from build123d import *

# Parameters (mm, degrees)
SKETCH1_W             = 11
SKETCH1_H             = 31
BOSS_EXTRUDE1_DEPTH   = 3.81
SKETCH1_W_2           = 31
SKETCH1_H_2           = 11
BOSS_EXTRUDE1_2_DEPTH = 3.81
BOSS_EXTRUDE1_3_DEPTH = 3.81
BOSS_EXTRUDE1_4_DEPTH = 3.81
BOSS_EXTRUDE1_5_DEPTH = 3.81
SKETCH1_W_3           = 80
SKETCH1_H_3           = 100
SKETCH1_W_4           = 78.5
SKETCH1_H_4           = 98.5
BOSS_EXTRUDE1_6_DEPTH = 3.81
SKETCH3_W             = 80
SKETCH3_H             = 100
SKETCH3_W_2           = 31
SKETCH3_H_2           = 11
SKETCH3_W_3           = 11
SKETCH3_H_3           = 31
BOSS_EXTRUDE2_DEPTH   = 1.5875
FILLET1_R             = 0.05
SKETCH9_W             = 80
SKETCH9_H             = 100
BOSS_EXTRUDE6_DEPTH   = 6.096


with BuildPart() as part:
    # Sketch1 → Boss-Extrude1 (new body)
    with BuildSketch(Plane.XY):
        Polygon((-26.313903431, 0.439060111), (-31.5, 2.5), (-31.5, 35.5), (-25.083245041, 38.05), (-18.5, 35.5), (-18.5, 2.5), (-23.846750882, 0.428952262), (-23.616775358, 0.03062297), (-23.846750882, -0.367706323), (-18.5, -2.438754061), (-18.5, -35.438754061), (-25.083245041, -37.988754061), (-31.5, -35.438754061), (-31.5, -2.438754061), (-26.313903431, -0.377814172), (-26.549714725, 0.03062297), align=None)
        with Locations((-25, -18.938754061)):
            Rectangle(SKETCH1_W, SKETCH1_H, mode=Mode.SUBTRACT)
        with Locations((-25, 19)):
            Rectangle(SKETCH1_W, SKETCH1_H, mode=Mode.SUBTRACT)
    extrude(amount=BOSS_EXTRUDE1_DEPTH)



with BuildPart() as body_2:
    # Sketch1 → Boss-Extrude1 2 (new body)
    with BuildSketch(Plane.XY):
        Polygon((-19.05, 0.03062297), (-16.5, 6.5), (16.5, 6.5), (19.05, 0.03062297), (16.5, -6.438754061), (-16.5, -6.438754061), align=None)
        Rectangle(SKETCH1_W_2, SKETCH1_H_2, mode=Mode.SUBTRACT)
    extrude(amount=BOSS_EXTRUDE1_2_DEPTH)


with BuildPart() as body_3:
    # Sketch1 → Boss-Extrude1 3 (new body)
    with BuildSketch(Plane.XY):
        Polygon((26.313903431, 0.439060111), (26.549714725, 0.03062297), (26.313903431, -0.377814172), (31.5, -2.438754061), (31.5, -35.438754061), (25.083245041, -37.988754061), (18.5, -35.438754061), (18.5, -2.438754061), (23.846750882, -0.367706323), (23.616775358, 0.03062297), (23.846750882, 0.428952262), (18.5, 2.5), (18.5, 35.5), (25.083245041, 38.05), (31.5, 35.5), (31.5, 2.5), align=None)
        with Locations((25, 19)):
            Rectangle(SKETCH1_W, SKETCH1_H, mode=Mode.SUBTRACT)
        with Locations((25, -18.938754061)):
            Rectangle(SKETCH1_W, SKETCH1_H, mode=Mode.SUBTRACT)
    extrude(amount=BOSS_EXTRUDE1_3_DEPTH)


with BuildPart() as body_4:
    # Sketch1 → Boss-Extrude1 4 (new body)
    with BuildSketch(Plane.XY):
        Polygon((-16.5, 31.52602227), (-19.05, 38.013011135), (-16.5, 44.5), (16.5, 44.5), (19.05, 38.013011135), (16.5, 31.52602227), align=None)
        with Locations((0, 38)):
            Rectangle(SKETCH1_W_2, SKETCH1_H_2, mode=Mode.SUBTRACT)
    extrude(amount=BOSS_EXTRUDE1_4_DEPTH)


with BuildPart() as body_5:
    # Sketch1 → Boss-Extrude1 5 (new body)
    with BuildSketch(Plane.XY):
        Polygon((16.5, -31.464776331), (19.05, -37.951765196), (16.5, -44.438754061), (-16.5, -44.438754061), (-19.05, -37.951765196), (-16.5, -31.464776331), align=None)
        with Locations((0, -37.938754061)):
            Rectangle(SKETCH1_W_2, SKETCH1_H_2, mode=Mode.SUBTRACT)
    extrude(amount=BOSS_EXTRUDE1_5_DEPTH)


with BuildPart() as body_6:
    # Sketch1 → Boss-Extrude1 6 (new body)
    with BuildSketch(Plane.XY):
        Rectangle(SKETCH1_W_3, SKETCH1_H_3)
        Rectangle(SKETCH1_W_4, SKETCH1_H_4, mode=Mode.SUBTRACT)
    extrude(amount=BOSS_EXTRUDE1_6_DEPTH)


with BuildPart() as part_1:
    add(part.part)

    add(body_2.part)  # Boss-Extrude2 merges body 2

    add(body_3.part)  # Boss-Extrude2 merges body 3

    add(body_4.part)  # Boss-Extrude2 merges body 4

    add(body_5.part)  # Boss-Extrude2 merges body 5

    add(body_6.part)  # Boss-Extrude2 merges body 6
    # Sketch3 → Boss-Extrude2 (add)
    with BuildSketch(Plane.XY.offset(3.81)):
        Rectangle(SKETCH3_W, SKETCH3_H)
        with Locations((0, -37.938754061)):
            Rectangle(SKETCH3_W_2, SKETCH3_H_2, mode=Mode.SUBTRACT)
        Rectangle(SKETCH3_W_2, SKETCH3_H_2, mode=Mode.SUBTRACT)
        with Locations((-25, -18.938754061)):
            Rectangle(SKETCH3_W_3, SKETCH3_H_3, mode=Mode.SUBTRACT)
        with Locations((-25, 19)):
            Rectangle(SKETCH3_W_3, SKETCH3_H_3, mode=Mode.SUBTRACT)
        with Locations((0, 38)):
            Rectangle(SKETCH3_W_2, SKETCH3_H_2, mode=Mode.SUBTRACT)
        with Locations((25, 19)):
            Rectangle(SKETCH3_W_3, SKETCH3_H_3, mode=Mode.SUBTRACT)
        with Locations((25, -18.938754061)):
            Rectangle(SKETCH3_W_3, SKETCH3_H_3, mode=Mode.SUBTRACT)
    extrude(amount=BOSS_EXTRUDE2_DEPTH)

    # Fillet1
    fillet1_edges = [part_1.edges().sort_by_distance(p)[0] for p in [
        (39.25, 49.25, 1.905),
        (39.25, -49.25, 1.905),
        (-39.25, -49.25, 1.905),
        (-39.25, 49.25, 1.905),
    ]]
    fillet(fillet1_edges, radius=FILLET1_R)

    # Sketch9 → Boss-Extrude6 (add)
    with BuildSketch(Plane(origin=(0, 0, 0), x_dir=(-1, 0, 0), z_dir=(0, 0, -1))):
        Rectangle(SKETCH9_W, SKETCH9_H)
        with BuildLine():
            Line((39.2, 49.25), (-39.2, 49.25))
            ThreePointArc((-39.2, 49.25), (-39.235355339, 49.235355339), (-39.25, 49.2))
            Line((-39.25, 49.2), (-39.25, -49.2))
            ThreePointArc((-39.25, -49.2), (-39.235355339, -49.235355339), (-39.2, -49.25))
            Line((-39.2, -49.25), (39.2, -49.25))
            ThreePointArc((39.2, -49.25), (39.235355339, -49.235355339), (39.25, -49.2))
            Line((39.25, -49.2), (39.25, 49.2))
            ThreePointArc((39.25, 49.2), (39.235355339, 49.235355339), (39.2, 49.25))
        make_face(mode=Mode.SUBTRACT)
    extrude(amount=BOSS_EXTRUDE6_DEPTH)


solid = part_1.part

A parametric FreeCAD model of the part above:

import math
import FreeCAD as App
import Part
import Sketcher
Q = App.Units.Quantity


def edges_at(feature, points):
    """Names of the edges that pass closest to the given points."""
    edges = feature.Shape.Edges
    near = lambda p: min(range(len(edges)), key=lambda i: edges[i].distToShape(Part.Vertex(*p))[0])
    return sorted({f"Edge{near(p) + 1}" for p in points})

doc = App.newDocument("Part")
params = doc.addObject("Spreadsheet::Sheet", "Params")
for row, (alias, value) in enumerate([
    ("sketch1_width", "11 mm"),
    ("sketch1_height", "33 mm"),
    ("sketch1_height2", "31 mm"),
    ("pad1_length", "3.81 mm"),
    ("sketch2_width", "33 mm"),
    ("sketch2_width2", "31 mm"),
    ("sketch2_height", "11 mm"),
    ("pad2_length", "3.81 mm"),
    ("sketch3_width", "11 mm"),
    ("sketch3_height", "33 mm"),
    ("sketch3_height2", "31 mm"),
    ("pad3_length", "3.81 mm"),
    ("sketch4_width", "33 mm"),
    ("sketch4_width2", "31 mm"),
    ("sketch4_height", "11 mm"),
    ("pad4_length", "3.81 mm"),
    ("sketch5_width", "33 mm"),
    ("sketch5_width2", "31 mm"),
    ("sketch5_height", "11 mm"),
    ("pad5_length", "3.81 mm"),
    ("sketch6_width", "80 mm"),
    ("sketch6_height", "100 mm"),
    ("sketch6_width2", "78.5 mm"),
    ("sketch6_height2", "98.5 mm"),
    ("pad6_length", "3.81 mm"),
    ("sketch7_width", "80 mm"),
    ("sketch7_width2", "11 mm"),
    ("sketch7_width3", "31 mm"),
    ("sketch7_height", "100 mm"),
    ("pad7_length", "1.5875 mm"),
    ("fillet_radius", "0.05 mm"),
    ("sketch8_width", "80 mm"),
    ("sketch8_height", "100 mm"),
    ("sketch8_radius", "0.05 mm"),
    ("sketch8_width2", "78.4 mm"),
    ("sketch8_height2", "98.4 mm"),
    ("pad8_length", "6.096 mm"),
], start=1):
    params.set(f"A{row}", alias)
    params.set(f"B{row}", "=" + value)
    params.setAlias(f"B{row}", alias)

body = doc.addObject("PartDesign::Body", "Body")

# Sketch on XY plane
sketch1 = body.newObject("Sketcher::SketchObject", "Sketch")
sketch1.AttachmentSupport = (doc.getObject("XY_Plane"), [""])
sketch1.MapMode = "FlatFace"
sketch1.addGeometry([
    Part.LineSegment(App.Vector(-31.5, 2.5, 0), App.Vector(-26.31, 0.44, 0)),  # 0
    Part.LineSegment(App.Vector(-26.31, 0.44, 0), App.Vector(-26.55, 0.03, 0)),  # 1
    Part.LineSegment(App.Vector(-26.55, 0.03, 0), App.Vector(-26.31, -0.38, 0)),  # 2
    Part.LineSegment(App.Vector(-26.31, -0.38, 0), App.Vector(-31.5, -2.44, 0)),  # 3
    Part.LineSegment(App.Vector(-31.5, -2.44, 0), App.Vector(-31.5, -35.44, 0)),  # 4
    Part.LineSegment(App.Vector(-31.5, -35.44, 0), App.Vector(-25.08, -37.99, 0)),  # 5
    Part.LineSegment(App.Vector(-25.08, -37.99, 0), App.Vector(-18.5, -35.44, 0)),  # 6
    Part.LineSegment(App.Vector(-18.5, -35.44, 0), App.Vector(-18.5, -2.44, 0)),  # 7
    Part.LineSegment(App.Vector(-18.5, -2.44, 0), App.Vector(-23.85, -0.37, 0)),  # 8
    Part.LineSegment(App.Vector(-23.85, -0.37, 0), App.Vector(-23.62, 0.03, 0)),  # 9
    Part.LineSegment(App.Vector(-23.62, 0.03, 0), App.Vector(-23.85, 0.43, 0)),  # 10
    Part.LineSegment(App.Vector(-23.85, 0.43, 0), App.Vector(-18.5, 2.5, 0)),  # 11
    Part.LineSegment(App.Vector(-18.5, 2.5, 0), App.Vector(-18.5, 35.5, 0)),  # 12
    Part.LineSegment(App.Vector(-18.5, 35.5, 0), App.Vector(-25.08, 38.05, 0)),  # 13
    Part.LineSegment(App.Vector(-25.08, 38.05, 0), App.Vector(-31.5, 35.5, 0)),  # 14
    Part.LineSegment(App.Vector(-31.5, 35.5, 0), App.Vector(-31.5, 2.5, 0)),  # 15
    Part.LineSegment(App.Vector(-30.5, -34.44, 0), App.Vector(-30.5, -3.44, 0)),  # 16
    Part.LineSegment(App.Vector(-30.5, -3.44, 0), App.Vector(-19.5, -3.44, 0)),  # 17
    Part.LineSegment(App.Vector(-19.5, -3.44, 0), App.Vector(-19.5, -34.44, 0)),  # 18
    Part.LineSegment(App.Vector(-19.5, -34.44, 0), App.Vector(-30.5, -34.44, 0)),  # 19
    Part.LineSegment(App.Vector(-30.5, 3.5, 0), App.Vector(-30.5, 34.5, 0)),  # 20
    Part.LineSegment(App.Vector(-30.5, 34.5, 0), App.Vector(-19.5, 34.5, 0)),  # 21
    Part.LineSegment(App.Vector(-19.5, 34.5, 0), App.Vector(-19.5, 3.5, 0)),  # 22
    Part.LineSegment(App.Vector(-19.5, 3.5, 0), App.Vector(-30.5, 3.5, 0)),  # 23
], False)
sketch1.addConstraint([
    Sketcher.Constraint("Coincident", 0, 2, 1, 1),
    Sketcher.Constraint("Coincident", 1, 2, 2, 1),
    Sketcher.Constraint("Coincident", 2, 2, 3, 1),
    Sketcher.Constraint("Coincident", 3, 2, 4, 1),
    Sketcher.Constraint("Coincident", 4, 2, 5, 1),
    Sketcher.Constraint("Coincident", 5, 2, 6, 1),
    Sketcher.Constraint("Coincident", 6, 2, 7, 1),
    Sketcher.Constraint("Coincident", 7, 2, 8, 1),
    Sketcher.Constraint("Coincident", 8, 2, 9, 1),
    Sketcher.Constraint("Coincident", 9, 2, 10, 1),
    Sketcher.Constraint("Coincident", 10, 2, 11, 1),
    Sketcher.Constraint("Coincident", 11, 2, 12, 1),
    Sketcher.Constraint("Coincident", 12, 2, 13, 1),
    Sketcher.Constraint("Coincident", 13, 2, 14, 1),
    Sketcher.Constraint("Coincident", 14, 2, 15, 1),
    Sketcher.Constraint("Coincident", 15, 2, 0, 1),
    Sketcher.Constraint("Coincident", 16, 2, 17, 1),
    Sketcher.Constraint("Coincident", 17, 2, 18, 1),
    Sketcher.Constraint("Coincident", 18, 2, 19, 1),
    Sketcher.Constraint("Coincident", 19, 2, 16, 1),
    Sketcher.Constraint("Coincident", 20, 2, 21, 1),
    Sketcher.Constraint("Coincident", 21, 2, 22, 1),
    Sketcher.Constraint("Coincident", 22, 2, 23, 1),
    Sketcher.Constraint("Coincident", 23, 2, 20, 1),
    Sketcher.Constraint("Vertical", 4),
    Sketcher.Constraint("Vertical", 7),
    Sketcher.Constraint("Vertical", 12),
    Sketcher.Constraint("Vertical", 15),
    Sketcher.Constraint("Vertical", 16),
    Sketcher.Constraint("Horizontal", 17),
    Sketcher.Constraint("Vertical", 18),
    Sketcher.Constraint("Horizontal", 19),
    Sketcher.Constraint("Vertical", 20),
    Sketcher.Constraint("Horizontal", 21),
    Sketcher.Constraint("Vertical", 22),
    Sketcher.Constraint("Horizontal", 23),
    Sketcher.Constraint("Parallel", 0, 5),
    Sketcher.Constraint("Parallel", 1, 9),
    Sketcher.Constraint("Parallel", 2, 10),
    Sketcher.Constraint("Parallel", 6, 11),
    Sketcher.Constraint("Parallel", 8, 13),
    Sketcher.Constraint("Parallel", 3, 14),
    Sketcher.Constraint("Horizontal", 4, 2, 6, 2),
    Sketcher.Constraint("Horizontal", 3, 2, 7, 2),
    Sketcher.Constraint("Horizontal", 1, 2, 9, 2),
    Sketcher.Constraint("Horizontal", 12, 2, 14, 2),
    Sketcher.Constraint("Horizontal", 11, 2, 15, 2),
    Sketcher.Constraint("Vertical", 0, 2, 2, 2),
    Sketcher.Constraint("Vertical", 8, 2, 10, 2),
    Sketcher.Constraint("Vertical", 7, 2, 11, 2),
    Sketcher.Constraint("Vertical", 5, 2, 13, 2),
    Sketcher.Constraint("Vertical", 4, 2, 14, 2),
    Sketcher.Constraint("Vertical", 19, 2, 20, 2),
    Sketcher.Constraint("Vertical", 18, 2, 21, 2),
    Sketcher.Constraint("Equal", 7, 12),
    Sketcher.Constraint("Equal", 18, 20),
    Sketcher.Constraint("Equal", 0, 3),
    Sketcher.Constraint("DistanceX", 17, 1, 17, 2, 11.0),
    Sketcher.Constraint("DistanceY", 4, 2, 4, 1, 33.0),
    Sketcher.Constraint("DistanceY", 16, 1, 16, 2, 31.0),
    Sketcher.Constraint("Angle", 1, Q("-120 deg")),
    Sketcher.Constraint("DistanceX", 4, 2, 6, 2, 13.0),
    Sketcher.Constraint("DistanceX", 3, 2, 16, 2, 1.0),
    Sketcher.Constraint("DistanceY", 16, 2, 3, 2, 1.0),
    Sketcher.Constraint("DistanceY", 20, 2, 14, 2, 1.0),
    Sketcher.Constraint("DistanceX", 3, 2, -1, 1, 31.5),
    Sketcher.Constraint("DistanceY", -1, 1, 11, 2, 2.5),
    Sketcher.Constraint("DistanceY", -1, 1, 13, 2, 38.05),
    Sketcher.Constraint("Distance", 5, 6.904871),
    Sketcher.Constraint("Distance", 9, 0.459951),
    Sketcher.Constraint("DistanceY", -1, 1, 0, 2, 0.43906),
    Sketcher.Constraint("DistanceX", 8, 2, -1, 1, 23.846751),
])
sketch1.setExpression("Constraints[57]", "Params.sketch1_width")
sketch1.setExpression("Constraints[58]", "Params.sketch1_height")
sketch1.setExpression("Constraints[59]", "Params.sketch1_height2")
pad1 = body.newObject("PartDesign::Pad", "Pad")
pad1.Profile = sketch1
pad1.setExpression("Length", "Params.pad1_length")
body2 = doc.addObject("PartDesign::Body", "Body001")

# Sketch on XY plane
sketch2 = body2.newObject("Sketcher::SketchObject", "Sketch001")
sketch2.AttachmentSupport = (doc.getObject("XY_Plane001"), [""])
sketch2.MapMode = "FlatFace"
sketch2.addGeometry([
    Part.LineSegment(App.Vector(-16, 6, 0), App.Vector(-19, 0, 0)),  # 0
    Part.LineSegment(App.Vector(-19, 0, 0), App.Vector(-16, -6, 0)),  # 1
    Part.LineSegment(App.Vector(-16, -6, 0), App.Vector(16, -6, 0)),  # 2
    Part.LineSegment(App.Vector(16, -6, 0), App.Vector(19, 0, 0)),  # 3
    Part.LineSegment(App.Vector(19, 0, 0), App.Vector(16, 6, 0)),  # 4
    Part.LineSegment(App.Vector(16, 6, 0), App.Vector(-16, 6, 0)),  # 5
    Part.LineSegment(App.Vector(-16, -6, 0), App.Vector(-16, 6, 0)),  # 6
    Part.LineSegment(App.Vector(-16, 6, 0), App.Vector(16, 6, 0)),  # 7
    Part.LineSegment(App.Vector(16, 6, 0), App.Vector(16, -6, 0)),  # 8
    Part.LineSegment(App.Vector(16, -6, 0), App.Vector(-16, -6, 0)),  # 9
], False)
sketch2.addConstraint([
    Sketcher.Constraint("Coincident", 0, 2, 1, 1),
    Sketcher.Constraint("Coincident", 1, 2, 2, 1),
    Sketcher.Constraint("Coincident", 2, 2, 3, 1),
    Sketcher.Constraint("Coincident", 3, 2, 4, 1),
    Sketcher.Constraint("Coincident", 4, 2, 5, 1),
    Sketcher.Constraint("Coincident", 5, 2, 0, 1),
    Sketcher.Constraint("Coincident", 6, 2, 7, 1),
    Sketcher.Constraint("Coincident", 7, 2, 8, 1),
    Sketcher.Constraint("Coincident", 8, 2, 9, 1),
    Sketcher.Constraint("Coincident", 9, 2, 6, 1),
    Sketcher.Constraint("Horizontal", 2),
    Sketcher.Constraint("Horizontal", 5),
    Sketcher.Constraint("Vertical", 6),
    Sketcher.Constraint("Horizontal", 7),
    Sketcher.Constraint("Vertical", 8),
    Sketcher.Constraint("Horizontal", 9),
    Sketcher.Constraint("Symmetric", 6, 2, 8, 2, -1, 1),
    Sketcher.Constraint("Symmetric", 0, 2, 3, 2, -2),
    Sketcher.Constraint("Parallel", 0, 3),
    Sketcher.Constraint("Parallel", 1, 4),
    Sketcher.Constraint("Vertical", 2, 2, 4, 2),
    Sketcher.Constraint("Vertical", 1, 2, 5, 2),
    Sketcher.Constraint("DistanceX", 2, 1, 2, 2, 33.0),
    Sketcher.Constraint("DistanceX", 7, 1, 7, 2, 31.0),
    Sketcher.Constraint("DistanceY", 6, 1, 6, 2, 11.0),
    Sketcher.Constraint("DistanceY", 6, 2, 5, 2, 1.0),
    Sketcher.Constraint("DistanceX", 0, 2, 3, 2, 38.1),
    Sketcher.Constraint("Distance", 0, 6.9538),
])
sketch2.setExpression("Constraints[22]", "Params.sketch2_width")
sketch2.setExpression("Constraints[23]", "Params.sketch2_width2")
sketch2.setExpression("Constraints[24]", "Params.sketch2_height")
pad2 = body2.newObject("PartDesign::Pad", "Pad001")
pad2.Profile = sketch2
pad2.setExpression("Length", "Params.pad2_length")
body3 = doc.addObject("PartDesign::Body", "Body002")

# Sketch on XY plane
sketch3 = body3.newObject("Sketcher::SketchObject", "Sketch002")
sketch3.AttachmentSupport = (doc.getObject("XY_Plane002"), [""])
sketch3.MapMode = "FlatFace"
sketch3.addGeometry([
    Part.LineSegment(App.Vector(26.55, 0.03, 0), App.Vector(26.31, 0.44, 0)),  # 0
    Part.LineSegment(App.Vector(26.31, 0.44, 0), App.Vector(31.5, 2.5, 0)),  # 1
    Part.LineSegment(App.Vector(31.5, 2.5, 0), App.Vector(31.5, 35.5, 0)),  # 2
    Part.LineSegment(App.Vector(31.5, 35.5, 0), App.Vector(25.08, 38.05, 0)),  # 3
    Part.LineSegment(App.Vector(25.08, 38.05, 0), App.Vector(18.5, 35.5, 0)),  # 4
    Part.LineSegment(App.Vector(18.5, 35.5, 0), App.Vector(18.5, 2.5, 0)),  # 5
    Part.LineSegment(App.Vector(18.5, 2.5, 0), App.Vector(23.85, 0.43, 0)),  # 6
    Part.LineSegment(App.Vector(23.85, 0.43, 0), App.Vector(23.62, 0.03, 0)),  # 7
    Part.LineSegment(App.Vector(23.62, 0.03, 0), App.Vector(23.85, -0.37, 0)),  # 8
    Part.LineSegment(App.Vector(23.85, -0.37, 0), App.Vector(18.5, -2.44, 0)),  # 9
    Part.LineSegment(App.Vector(18.5, -2.44, 0), App.Vector(18.5, -35.44, 0)),  # 10
    Part.LineSegment(App.Vector(18.5, -35.44, 0), App.Vector(25.08, -37.99, 0)),  # 11
    Part.LineSegment(App.Vector(25.08, -37.99, 0), App.Vector(31.5, -35.44, 0)),  # 12
    Part.LineSegment(App.Vector(31.5, -35.44, 0), App.Vector(31.5, -2.44, 0)),  # 13
    Part.LineSegment(App.Vector(31.5, -2.44, 0), App.Vector(26.31, -0.38, 0)),  # 14
    Part.LineSegment(App.Vector(26.31, -0.38, 0), App.Vector(26.55, 0.03, 0)),  # 15
    Part.LineSegment(App.Vector(19.5, -34.44, 0), App.Vector(19.5, -3.44, 0)),  # 16
    Part.LineSegment(App.Vector(19.5, -3.44, 0), App.Vector(30.5, -3.44, 0)),  # 17
    Part.LineSegment(App.Vector(30.5, -3.44, 0), App.Vector(30.5, -34.44, 0)),  # 18
    Part.LineSegment(App.Vector(30.5, -34.44, 0), App.Vector(19.5, -34.44, 0)),  # 19
    Part.LineSegment(App.Vector(19.5, 3.5, 0), App.Vector(19.5, 34.5, 0)),  # 20
    Part.LineSegment(App.Vector(19.5, 34.5, 0), App.Vector(30.5, 34.5, 0)),  # 21
    Part.LineSegment(App.Vector(30.5, 34.5, 0), App.Vector(30.5, 3.5, 0)),  # 22
    Part.LineSegment(App.Vector(30.5, 3.5, 0), App.Vector(19.5, 3.5, 0)),  # 23
], False)
sketch3.addConstraint([
    Sketcher.Constraint("Coincident", 0, 2, 1, 1),
    Sketcher.Constraint("Coincident", 1, 2, 2, 1),
    Sketcher.Constraint("Coincident", 2, 2, 3, 1),
    Sketcher.Constraint("Coincident", 3, 2, 4, 1),
    Sketcher.Constraint("Coincident", 4, 2, 5, 1),
    Sketcher.Constraint("Coincident", 5, 2, 6, 1),
    Sketcher.Constraint("Coincident", 6, 2, 7, 1),
    Sketcher.Constraint("Coincident", 7, 2, 8, 1),
    Sketcher.Constraint("Coincident", 8, 2, 9, 1),
    Sketcher.Constraint("Coincident", 9, 2, 10, 1),
    Sketcher.Constraint("Coincident", 10, 2, 11, 1),
    Sketcher.Constraint("Coincident", 11, 2, 12, 1),
    Sketcher.Constraint("Coincident", 12, 2, 13, 1),
    Sketcher.Constraint("Coincident", 13, 2, 14, 1),
    Sketcher.Constraint("Coincident", 14, 2, 15, 1),
    Sketcher.Constraint("Coincident", 15, 2, 0, 1),
    Sketcher.Constraint("Coincident", 16, 2, 17, 1),
    Sketcher.Constraint("Coincident", 17, 2, 18, 1),
    Sketcher.Constraint("Coincident", 18, 2, 19, 1),
    Sketcher.Constraint("Coincident", 19, 2, 16, 1),
    Sketcher.Constraint("Coincident", 20, 2, 21, 1),
    Sketcher.Constraint("Coincident", 21, 2, 22, 1),
    Sketcher.Constraint("Coincident", 22, 2, 23, 1),
    Sketcher.Constraint("Coincident", 23, 2, 20, 1),
    Sketcher.Constraint("Vertical", 2),
    Sketcher.Constraint("Vertical", 5),
    Sketcher.Constraint("Vertical", 10),
    Sketcher.Constraint("Vertical", 13),
    Sketcher.Constraint("Vertical", 16),
    Sketcher.Constraint("Horizontal", 17),
    Sketcher.Constraint("Vertical", 18),
    Sketcher.Constraint("Horizontal", 19),
    Sketcher.Constraint("Vertical", 20),
    Sketcher.Constraint("Horizontal", 21),
    Sketcher.Constraint("Vertical", 22),
    Sketcher.Constraint("Horizontal", 23),
    Sketcher.Constraint("Parallel", 0, 8),
    Sketcher.Constraint("Parallel", 4, 9),
    Sketcher.Constraint("Parallel", 6, 11),
    Sketcher.Constraint("Parallel", 1, 12),
    Sketcher.Constraint("Parallel", 3, 14),
    Sketcher.Constraint("Parallel", 7, 15),
    Sketcher.Constraint("Horizontal", 2, 2, 4, 2),
    Sketcher.Constraint("Horizontal", 1, 2, 5, 2),
    Sketcher.Constraint("Horizontal", 10, 2, 12, 2),
    Sketcher.Constraint("Horizontal", 9, 2, 13, 2),
    Sketcher.Constraint("Horizontal", 7, 2, 15, 2),
    Sketcher.Constraint("Vertical", 6, 2, 8, 2),
    Sketcher.Constraint("Vertical", 5, 2, 9, 2),
    Sketcher.Constraint("Vertical", 3, 2, 11, 2),
    Sketcher.Constraint("Vertical", 2, 2, 12, 2),
    Sketcher.Constraint("Vertical", 0, 2, 14, 2),
    Sketcher.Constraint("Vertical", 19, 2, 20, 2),
    Sketcher.Constraint("Vertical", 18, 2, 21, 2),
    Sketcher.Constraint("Equal", 5, 10),
    Sketcher.Constraint("Equal", 18, 20),
    Sketcher.Constraint("Equal", 6, 9),
    Sketcher.Constraint("DistanceX", 17, 1, 17, 2, 11.0),
    Sketcher.Constraint("DistanceY", 2, 1, 2, 2, 33.0),
    Sketcher.Constraint("DistanceY", 16, 1, 16, 2, 31.0),
    Sketcher.Constraint("Angle", 0, Q("120 deg")),
    Sketcher.Constraint("DistanceX", 4, 2, 2, 2, 13.0),
    Sketcher.Constraint("DistanceX", 9, 2, 16, 2, 1.0),
    Sketcher.Constraint("DistanceY", 16, 2, 9, 2, 1.0),
    Sketcher.Constraint("DistanceY", 20, 2, 4, 2, 1.0),
    Sketcher.Constraint("DistanceX", -1, 1, 1, 2, 31.5),
    Sketcher.Constraint("DistanceY", -1, 1, 1, 2, 2.5),
    Sketcher.Constraint("DistanceY", -1, 1, 3, 2, 38.05),
    Sketcher.Constraint("Distance", 3, 6.904871),
    Sketcher.Constraint("Distance", 7, 0.459951),
    Sketcher.Constraint("DistanceY", -1, 1, 0, 2, 0.43906),
    Sketcher.Constraint("DistanceX", -1, 1, 6, 2, 23.846751),
])
sketch3.setExpression("Constraints[57]", "Params.sketch3_width")
sketch3.setExpression("Constraints[58]", "Params.sketch3_height")
sketch3.setExpression("Constraints[59]", "Params.sketch3_height2")
pad3 = body3.newObject("PartDesign::Pad", "Pad002")
pad3.Profile = sketch3
pad3.setExpression("Length", "Params.pad3_length")
body4 = doc.addObject("PartDesign::Body", "Body003")

# Sketch on XY plane
sketch4 = body4.newObject("Sketcher::SketchObject", "Sketch003")
sketch4.AttachmentSupport = (doc.getObject("XY_Plane003"), [""])
sketch4.MapMode = "FlatFace"
sketch4.addGeometry([
    Part.LineSegment(App.Vector(-19, 38, 0), App.Vector(-16, 32, 0)),  # 0
    Part.LineSegment(App.Vector(-16, 32, 0), App.Vector(16, 32, 0)),  # 1
    Part.LineSegment(App.Vector(16, 32, 0), App.Vector(19, 38, 0)),  # 2
    Part.LineSegment(App.Vector(19, 38, 0), App.Vector(16, 44, 0)),  # 3
    Part.LineSegment(App.Vector(16, 44, 0), App.Vector(-16, 44, 0)),  # 4
    Part.LineSegment(App.Vector(-16, 44, 0), App.Vector(-19, 38, 0)),  # 5
    Part.LineSegment(App.Vector(-16, 32, 0), App.Vector(-16, 44, 0)),  # 6
    Part.LineSegment(App.Vector(-16, 44, 0), App.Vector(16, 44, 0)),  # 7
    Part.LineSegment(App.Vector(16, 44, 0), App.Vector(16, 32, 0)),  # 8
    Part.LineSegment(App.Vector(16, 32, 0), App.Vector(-16, 32, 0)),  # 9
], False)
sketch4.addConstraint([
    Sketcher.Constraint("Coincident", 0, 2, 1, 1),
    Sketcher.Constraint("Coincident", 1, 2, 2, 1),
    Sketcher.Constraint("Coincident", 2, 2, 3, 1),
    Sketcher.Constraint("Coincident", 3, 2, 4, 1),
    Sketcher.Constraint("Coincident", 4, 2, 5, 1),
    Sketcher.Constraint("Coincident", 5, 2, 0, 1),
    Sketcher.Constraint("Coincident", 6, 2, 7, 1),
    Sketcher.Constraint("Coincident", 7, 2, 8, 1),
    Sketcher.Constraint("Coincident", 8, 2, 9, 1),
    Sketcher.Constraint("Coincident", 9, 2, 6, 1),
    Sketcher.Constraint("Horizontal", 1),
    Sketcher.Constraint("Horizontal", 4),
    Sketcher.Constraint("Vertical", 6),
    Sketcher.Constraint("Horizontal", 7),
    Sketcher.Constraint("Vertical", 8),
    Sketcher.Constraint("Horizontal", 9),
    Sketcher.Constraint("Symmetric", 2, 2, 5, 2, -2),
    Sketcher.Constraint("Parallel", 0, 3),
    Sketcher.Constraint("Parallel", 2, 5),
    Sketcher.Constraint("Vertical", 1, 2, 3, 2),
    Sketcher.Constraint("Vertical", 0, 2, 4, 2),
    Sketcher.Constraint("DistanceX", 1, 1, 1, 2, 33.0),
    Sketcher.Constraint("DistanceX", 7, 1, 7, 2, 31.0),
    Sketcher.Constraint("DistanceY", 6, 1, 6, 2, 11.0),
    Sketcher.Constraint("DistanceX", 4, 2, 6, 2, 1.0),
    Sketcher.Constraint("DistanceY", 6, 2, 4, 2, 1.0),
    Sketcher.Constraint("DistanceY", -1, 1, 3, 2, 44.5),
    Sketcher.Constraint("DistanceX", 5, 2, 2, 2, 38.1),
    Sketcher.Constraint("Distance", 0, 6.970188),
])
sketch4.setExpression("Constraints[21]", "Params.sketch4_width")
sketch4.setExpression("Constraints[22]", "Params.sketch4_width2")
sketch4.setExpression("Constraints[23]", "Params.sketch4_height")
pad4 = body4.newObject("PartDesign::Pad", "Pad003")
pad4.Profile = sketch4
pad4.setExpression("Length", "Params.pad4_length")
body5 = doc.addObject("PartDesign::Body", "Body004")

# Sketch on XY plane
sketch5 = body5.newObject("Sketcher::SketchObject", "Sketch004")
sketch5.AttachmentSupport = (doc.getObject("XY_Plane004"), [""])
sketch5.MapMode = "FlatFace"
sketch5.addGeometry([
    Part.LineSegment(App.Vector(19, -38, 0), App.Vector(16, -31, 0)),  # 0
    Part.LineSegment(App.Vector(16, -31, 0), App.Vector(-16, -31, 0)),  # 1
    Part.LineSegment(App.Vector(-16, -31, 0), App.Vector(-19, -38, 0)),  # 2
    Part.LineSegment(App.Vector(-19, -38, 0), App.Vector(-16, -44, 0)),  # 3
    Part.LineSegment(App.Vector(-16, -44, 0), App.Vector(16, -44, 0)),  # 4
    Part.LineSegment(App.Vector(16, -44, 0), App.Vector(19, -38, 0)),  # 5
    Part.LineSegment(App.Vector(-16, -43, 0), App.Vector(-16, -32, 0)),  # 6
    Part.LineSegment(App.Vector(-16, -32, 0), App.Vector(16, -32, 0)),  # 7
    Part.LineSegment(App.Vector(16, -32, 0), App.Vector(16, -43, 0)),  # 8
    Part.LineSegment(App.Vector(16, -43, 0), App.Vector(-16, -43, 0)),  # 9
], False)
sketch5.addConstraint([
    Sketcher.Constraint("Coincident", 0, 2, 1, 1),
    Sketcher.Constraint("Coincident", 1, 2, 2, 1),
    Sketcher.Constraint("Coincident", 2, 2, 3, 1),
    Sketcher.Constraint("Coincident", 3, 2, 4, 1),
    Sketcher.Constraint("Coincident", 4, 2, 5, 1),
    Sketcher.Constraint("Coincident", 5, 2, 0, 1),
    Sketcher.Constraint("Coincident", 6, 2, 7, 1),
    Sketcher.Constraint("Coincident", 7, 2, 8, 1),
    Sketcher.Constraint("Coincident", 8, 2, 9, 1),
    Sketcher.Constraint("Coincident", 9, 2, 6, 1),
    Sketcher.Constraint("Horizontal", 1),
    Sketcher.Constraint("Horizontal", 4),
    Sketcher.Constraint("Vertical", 6),
    Sketcher.Constraint("Horizontal", 7),
    Sketcher.Constraint("Vertical", 8),
    Sketcher.Constraint("Horizontal", 9),
    Sketcher.Constraint("Symmetric", 2, 2, 5, 2, -2),
    Sketcher.Constraint("Parallel", 0, 3),
    Sketcher.Constraint("Parallel", 2, 5),
    Sketcher.Constraint("Vertical", 1, 2, 3, 2),
    Sketcher.Constraint("Vertical", 0, 2, 4, 2),
    Sketcher.Constraint("DistanceX", 1, 2, 1, 1, 33.0),
    Sketcher.Constraint("DistanceX", 7, 1, 7, 2, 31.0),
    Sketcher.Constraint("DistanceY", 6, 1, 6, 2, 11.0),
    Sketcher.Constraint("DistanceX", 1, 2, 6, 2, 1.0),
    Sketcher.Constraint("DistanceY", 3, 2, 6, 2, 12.0),
    Sketcher.Constraint("DistanceX", 2, 2, 5, 2, 38.1),
    Sketcher.Constraint("Distance", 0, 6.970188),
    Sketcher.Constraint("DistanceY", 0, 2, -1, 1, 31.464776),
])
sketch5.setExpression("Constraints[21]", "Params.sketch5_width")
sketch5.setExpression("Constraints[22]", "Params.sketch5_width2")
sketch5.setExpression("Constraints[23]", "Params.sketch5_height")
pad5 = body5.newObject("PartDesign::Pad", "Pad004")
pad5.Profile = sketch5
pad5.setExpression("Length", "Params.pad5_length")
body6 = doc.addObject("PartDesign::Body", "Body005")

# Sketch on XY plane
sketch6 = body6.newObject("Sketcher::SketchObject", "Sketch005")
sketch6.AttachmentSupport = (doc.getObject("XY_Plane005"), [""])
sketch6.MapMode = "FlatFace"
sketch6.addGeometry([
    Part.LineSegment(App.Vector(-40, 50, 0), App.Vector(-40, -50, 0)),  # 0
    Part.LineSegment(App.Vector(-40, -50, 0), App.Vector(40, -50, 0)),  # 1
    Part.LineSegment(App.Vector(40, -50, 0), App.Vector(40, 50, 0)),  # 2
    Part.LineSegment(App.Vector(40, 50, 0), App.Vector(-40, 50, 0)),  # 3
    Part.LineSegment(App.Vector(39, -49, 0), App.Vector(-39, -49, 0)),  # 4
    Part.LineSegment(App.Vector(-39, -49, 0), App.Vector(-39, 49, 0)),  # 5
    Part.LineSegment(App.Vector(-39, 49, 0), App.Vector(39, 49, 0)),  # 6
    Part.LineSegment(App.Vector(39, 49, 0), App.Vector(39, -49, 0)),  # 7
], False)
sketch6.addConstraint([
    Sketcher.Constraint("Coincident", 0, 2, 1, 1),
    Sketcher.Constraint("Coincident", 1, 2, 2, 1),
    Sketcher.Constraint("Coincident", 2, 2, 3, 1),
    Sketcher.Constraint("Coincident", 3, 2, 0, 1),
    Sketcher.Constraint("Coincident", 4, 2, 5, 1),
    Sketcher.Constraint("Coincident", 5, 2, 6, 1),
    Sketcher.Constraint("Coincident", 6, 2, 7, 1),
    Sketcher.Constraint("Coincident", 7, 2, 4, 1),
    Sketcher.Constraint("Vertical", 0),
    Sketcher.Constraint("Horizontal", 1),
    Sketcher.Constraint("Vertical", 2),
    Sketcher.Constraint("Horizontal", 3),
    Sketcher.Constraint("Horizontal", 4),
    Sketcher.Constraint("Vertical", 5),
    Sketcher.Constraint("Horizontal", 6),
    Sketcher.Constraint("Vertical", 7),
    Sketcher.Constraint("Symmetric", 0, 2, 2, 2, -1, 1),
    Sketcher.Constraint("Symmetric", 4, 2, 6, 2, -1, 1),
    Sketcher.Constraint("DistanceX", 1, 1, 1, 2, 80.0),
    Sketcher.Constraint("DistanceY", 0, 2, 0, 1, 100.0),
    Sketcher.Constraint("DistanceX", 4, 2, 4, 1, 78.5),
    Sketcher.Constraint("DistanceY", 5, 1, 5, 2, 98.5),
])
sketch6.setExpression("Constraints[18]", "Params.sketch6_width")
sketch6.setExpression("Constraints[19]", "Params.sketch6_height")
sketch6.setExpression("Constraints[20]", "Params.sketch6_width2")
sketch6.setExpression("Constraints[21]", "Params.sketch6_height2")
pad6 = body6.newObject("PartDesign::Pad", "Pad005")
pad6.Profile = sketch6
pad6.setExpression("Length", "Params.pad6_length")
body.AllowCompound = True
doc.recompute()

boolean = body.newObject("PartDesign::Boolean", "Boolean")
boolean.Type = "Fuse"
boolean.addObjects([body2])
doc.recompute()

boolean2 = body.newObject("PartDesign::Boolean", "Boolean001")
boolean2.Type = "Fuse"
boolean2.addObjects([body3])
doc.recompute()

boolean3 = body.newObject("PartDesign::Boolean", "Boolean002")
boolean3.Type = "Fuse"
boolean3.addObjects([body4])
doc.recompute()

boolean4 = body.newObject("PartDesign::Boolean", "Boolean003")
boolean4.Type = "Fuse"
boolean4.addObjects([body5])
doc.recompute()

boolean5 = body.newObject("PartDesign::Boolean", "Boolean004")
boolean5.Type = "Fuse"
boolean5.addObjects([body6])

# Sketch on XY plane
sketch7 = body.newObject("Sketcher::SketchObject", "Sketch006")
sketch7.AttachmentSupport = (doc.getObject("XY_Plane"), [""])
sketch7.MapMode = "FlatFace"
sketch7.AttachmentOffset = App.Placement(App.Vector(0, 0, 3.81), App.Rotation())
sketch7.addGeometry([
    Part.LineSegment(App.Vector(-40, 50, 0), App.Vector(-40, -50, 0)),  # 0
    Part.LineSegment(App.Vector(-40, -50, 0), App.Vector(40, -50, 0)),  # 1
    Part.LineSegment(App.Vector(40, -50, 0), App.Vector(40, 50, 0)),  # 2
    Part.LineSegment(App.Vector(40, 50, 0), App.Vector(-40, 50, 0)),  # 3
    Part.LineSegment(App.Vector(-20, -34, 0), App.Vector(-30, -34, 0)),  # 4
    Part.LineSegment(App.Vector(-30, -34, 0), App.Vector(-30, -3, 0)),  # 5
    Part.LineSegment(App.Vector(-30, -3, 0), App.Vector(-20, -3, 0)),  # 6
    Part.LineSegment(App.Vector(-20, -3, 0), App.Vector(-20, -34, 0)),  # 7
    Part.LineSegment(App.Vector(16, -43, 0), App.Vector(-16, -43, 0)),  # 8
    Part.LineSegment(App.Vector(-16, -43, 0), App.Vector(-16, -32, 0)),  # 9
    Part.LineSegment(App.Vector(-16, -32, 0), App.Vector(16, -32, 0)),  # 10
    Part.LineSegment(App.Vector(16, -32, 0), App.Vector(16, -43, 0)),  # 11
    Part.LineSegment(App.Vector(16, -6, 0), App.Vector(-16, -6, 0)),  # 12
    Part.LineSegment(App.Vector(-16, -6, 0), App.Vector(-16, 6, 0)),  # 13
    Part.LineSegment(App.Vector(-16, 6, 0), App.Vector(16, 6, 0)),  # 14
    Part.LineSegment(App.Vector(16, 6, 0), App.Vector(16, -6, 0)),  # 15
    Part.LineSegment(App.Vector(30, -34, 0), App.Vector(20, -34, 0)),  # 16
    Part.LineSegment(App.Vector(20, -34, 0), App.Vector(20, -3, 0)),  # 17
    Part.LineSegment(App.Vector(20, -3, 0), App.Vector(30, -3, 0)),  # 18
    Part.LineSegment(App.Vector(30, -3, 0), App.Vector(30, -34, 0)),  # 19
    Part.LineSegment(App.Vector(-20, 4, 0), App.Vector(-30, 4, 0)),  # 20
    Part.LineSegment(App.Vector(-30, 4, 0), App.Vector(-30, 34, 0)),  # 21
    Part.LineSegment(App.Vector(-30, 34, 0), App.Vector(-20, 34, 0)),  # 22
    Part.LineSegment(App.Vector(-20, 34, 0), App.Vector(-20, 4, 0)),  # 23
    Part.LineSegment(App.Vector(30, 4, 0), App.Vector(20, 4, 0)),  # 24
    Part.LineSegment(App.Vector(20, 4, 0), App.Vector(20, 34, 0)),  # 25
    Part.LineSegment(App.Vector(20, 34, 0), App.Vector(30, 34, 0)),  # 26
    Part.LineSegment(App.Vector(30, 34, 0), App.Vector(30, 4, 0)),  # 27
    Part.LineSegment(App.Vector(16, 32, 0), App.Vector(-16, 32, 0)),  # 28
    Part.LineSegment(App.Vector(-16, 32, 0), App.Vector(-16, 44, 0)),  # 29
    Part.LineSegment(App.Vector(-16, 44, 0), App.Vector(16, 44, 0)),  # 30
    Part.LineSegment(App.Vector(16, 44, 0), App.Vector(16, 32, 0)),  # 31
], False)
sketch7.addConstraint([
    Sketcher.Constraint("Coincident", 0, 2, 1, 1),
    Sketcher.Constraint("Coincident", 1, 2, 2, 1),
    Sketcher.Constraint("Coincident", 2, 2, 3, 1),
    Sketcher.Constraint("Coincident", 3, 2, 0, 1),
    Sketcher.Constraint("Coincident", 4, 2, 5, 1),
    Sketcher.Constraint("Coincident", 5, 2, 6, 1),
    Sketcher.Constraint("Coincident", 6, 2, 7, 1),
    Sketcher.Constraint("Coincident", 7, 2, 4, 1),
    Sketcher.Constraint("Coincident", 8, 2, 9, 1),
    Sketcher.Constraint("Coincident", 9, 2, 10, 1),
    Sketcher.Constraint("Coincident", 10, 2, 11, 1),
    Sketcher.Constraint("Coincident", 11, 2, 8, 1),
    Sketcher.Constraint("Coincident", 12, 2, 13, 1),
    Sketcher.Constraint("Coincident", 13, 2, 14, 1),
    Sketcher.Constraint("Coincident", 14, 2, 15, 1),
    Sketcher.Constraint("Coincident", 15, 2, 12, 1),
    Sketcher.Constraint("Coincident", 16, 2, 17, 1),
    Sketcher.Constraint("Coincident", 17, 2, 18, 1),
    Sketcher.Constraint("Coincident", 18, 2, 19, 1),
    Sketcher.Constraint("Coincident", 19, 2, 16, 1),
    Sketcher.Constraint("Coincident", 20, 2, 21, 1),
    Sketcher.Constraint("Coincident", 21, 2, 22, 1),
    Sketcher.Constraint("Coincident", 22, 2, 23, 1),
    Sketcher.Constraint("Coincident", 23, 2, 20, 1),
    Sketcher.Constraint("Coincident", 24, 2, 25, 1),
    Sketcher.Constraint("Coincident", 25, 2, 26, 1),
    Sketcher.Constraint("Coincident", 26, 2, 27, 1),
    Sketcher.Constraint("Coincident", 27, 2, 24, 1),
    Sketcher.Constraint("Coincident", 28, 2, 29, 1),
    Sketcher.Constraint("Coincident", 29, 2, 30, 1),
    Sketcher.Constraint("Coincident", 30, 2, 31, 1),
    Sketcher.Constraint("Coincident", 31, 2, 28, 1),
    Sketcher.Constraint("Vertical", 0),
    Sketcher.Constraint("Horizontal", 1),
    Sketcher.Constraint("Vertical", 2),
    Sketcher.Constraint("Horizontal", 3),
    Sketcher.Constraint("Horizontal", 4),
    Sketcher.Constraint("Vertical", 5),
    Sketcher.Constraint("Horizontal", 6),
    Sketcher.Constraint("Vertical", 7),
    Sketcher.Constraint("Horizontal", 8),
    Sketcher.Constraint("Vertical", 9),
    Sketcher.Constraint("Horizontal", 10),
    Sketcher.Constraint("Vertical", 11),
    Sketcher.Constraint("Horizontal", 12),
    Sketcher.Constraint("Vertical", 13),
    Sketcher.Constraint("Horizontal", 14),
    Sketcher.Constraint("Vertical", 15),
    Sketcher.Constraint("Horizontal", 16),
    Sketcher.Constraint("Vertical", 17),
    Sketcher.Constraint("Horizontal", 18),
    Sketcher.Constraint("Vertical", 19),
    Sketcher.Constraint("Horizontal", 20),
    Sketcher.Constraint("Vertical", 21),
    Sketcher.Constraint("Horizontal", 22),
    Sketcher.Constraint("Vertical", 23),
    Sketcher.Constraint("Horizontal", 24),
    Sketcher.Constraint("Vertical", 25),
    Sketcher.Constraint("Horizontal", 26),
    Sketcher.Constraint("Vertical", 27),
    Sketcher.Constraint("Horizontal", 28),
    Sketcher.Constraint("Vertical", 29),
    Sketcher.Constraint("Horizontal", 30),
    Sketcher.Constraint("Vertical", 31),
    Sketcher.Constraint("Symmetric", 0, 2, 2, 2, -1, 1),
    Sketcher.Constraint("Symmetric", 12, 2, 14, 2, -1, 1),
    Sketcher.Constraint("Symmetric", 7, 2, 16, 2, -2),
    Sketcher.Constraint("Symmetric", 5, 2, 18, 2, -2),
    Sketcher.Constraint("Symmetric", 23, 2, 24, 2, -2),
    Sketcher.Constraint("Symmetric", 21, 2, 26, 2, -2),
    Sketcher.Constraint("Vertical", 9, 2, 12, 2),
    Sketcher.Constraint("Vertical", 11, 2, 14, 2),
    Sketcher.Constraint("Vertical", 5, 2, 20, 2),
    Sketcher.Constraint("Vertical", 7, 2, 22, 2),
    Sketcher.Constraint("Vertical", 13, 2, 28, 2),
    Sketcher.Constraint("Vertical", 15, 2, 30, 2),
    Sketcher.Constraint("Equal", 30, 5),
    Sketcher.Constraint("Equal", 26, 9),
    Sketcher.Constraint("Equal", 11, 13),
    Sketcher.Constraint("Equal", 19, 21),
    Sketcher.Constraint("Equal", 15, 29),
    Sketcher.Constraint("DistanceX", 1, 1, 1, 2, 80.0),
    Sketcher.Constraint("DistanceX", 4, 2, 4, 1, 11.0),
    Sketcher.Constraint("DistanceX", 8, 2, 8, 1, 31.0),
    Sketcher.Constraint("DistanceY", 0, 2, 0, 1, 100.0),
    Sketcher.Constraint("DistanceX", 7, 2, 8, 2, 4.0),
    Sketcher.Constraint("DistanceY", 8, 2, 7, 2, 9.0),
    Sketcher.Constraint("DistanceY", 20, 2, 13, 2, 2.0),
    Sketcher.Constraint("DistanceY", 28, 2, 22, 2, 2.0),
    Sketcher.Constraint("DistanceY", 4, 2, -1, 1, 34.438754),
])
sketch7.setExpression("Constraints[81]", "Params.sketch7_width")
sketch7.setExpression("Constraints[82]", "Params.sketch7_width2")
sketch7.setExpression("Constraints[83]", "Params.sketch7_width3")
sketch7.setExpression("Constraints[84]", "Params.sketch7_height")
pad7 = body.newObject("PartDesign::Pad", "Pad006")
pad7.Profile = sketch7
pad7.setExpression("Length", "Params.pad7_length")
doc.recompute()

fillet = body.newObject("PartDesign::Fillet", "Fillet")
fillet.Base = (pad7, edges_at(pad7, [
    (39.25, 49.25, 1.905),
    (39.25, -49.25, 1.905),
    (-39.25, -49.25, 1.905),
    (-39.25, 49.25, 1.905),
]))
fillet.setExpression("Radius", "Params.fillet_radius")

# Sketch on XY plane
sketch8 = body.newObject("Sketcher::SketchObject", "Sketch007")
sketch8.AttachmentSupport = (doc.getObject("XY_Plane"), [""])
sketch8.MapMode = "FlatFace"
sketch8.addGeometry([
    Part.LineSegment(App.Vector(40, 50, 0), App.Vector(40, -50, 0)),  # 0
    Part.LineSegment(App.Vector(40, -50, 0), App.Vector(-40, -50, 0)),  # 1
    Part.LineSegment(App.Vector(-40, -50, 0), App.Vector(-40, 50, 0)),  # 2
    Part.LineSegment(App.Vector(-40, 50, 0), App.Vector(40, 50, 0)),  # 3
    Part.LineSegment(App.Vector(39.2, 49.25, 0), App.Vector(-39.2, 49.25, 0)),  # 4
    Part.ArcOfCircle(Part.Circle(App.Vector(-39.2, 49.2, 0), App.Vector(0, 0, 1), 0.05), math.radians(90), math.radians(180)),  # 5
    Part.LineSegment(App.Vector(-39.25, 49.2, 0), App.Vector(-39.25, -49.2, 0)),  # 6
    Part.ArcOfCircle(Part.Circle(App.Vector(-39.2, -49.2, 0), App.Vector(0, 0, 1), 0.05), math.radians(180), math.radians(270)),  # 7
    Part.LineSegment(App.Vector(-39.2, -49.25, 0), App.Vector(39.2, -49.25, 0)),  # 8
    Part.ArcOfCircle(Part.Circle(App.Vector(39.2, -49.2, 0), App.Vector(0, 0, 1), 0.05), math.radians(-90), math.radians(0)),  # 9
    Part.LineSegment(App.Vector(39.25, -49.2, 0), App.Vector(39.25, 49.2, 0)),  # 10
    Part.ArcOfCircle(Part.Circle(App.Vector(39.2, 49.2, 0), App.Vector(0, 0, 1), 0.05), math.radians(0), math.radians(90)),  # 11
], False)
sketch8.addConstraint([
    Sketcher.Constraint("Coincident", 0, 2, 1, 1),
    Sketcher.Constraint("Coincident", 1, 2, 2, 1),
    Sketcher.Constraint("Coincident", 2, 2, 3, 1),
    Sketcher.Constraint("Coincident", 3, 2, 0, 1),
    Sketcher.Constraint("Tangent", 4, 2, 5, 1),
    Sketcher.Constraint("Tangent", 5, 2, 6, 1),
    Sketcher.Constraint("Tangent", 6, 2, 7, 1),
    Sketcher.Constraint("Tangent", 7, 2, 8, 1),
    Sketcher.Constraint("Tangent", 8, 2, 9, 1),
    Sketcher.Constraint("Tangent", 9, 2, 10, 1),
    Sketcher.Constraint("Tangent", 10, 2, 11, 1),
    Sketcher.Constraint("Tangent", 11, 2, 4, 1),
    Sketcher.Constraint("Vertical", 0),
    Sketcher.Constraint("Horizontal", 1),
    Sketcher.Constraint("Vertical", 2),
    Sketcher.Constraint("Horizontal", 3),
    Sketcher.Constraint("Horizontal", 4),
    Sketcher.Constraint("Vertical", 6),
    Sketcher.Constraint("Horizontal", 8),
    Sketcher.Constraint("Vertical", 10),
    Sketcher.Constraint("Equal", 5, 7),
    Sketcher.Constraint("Equal", 7, 9),
    Sketcher.Constraint("Equal", 9, 11),
    Sketcher.Constraint("Symmetric", 5, 3, 9, 3, -1, 1),
    Sketcher.Constraint("Symmetric", 0, 2, 2, 2, -1, 1),
    Sketcher.Constraint("DistanceX", 1, 2, 1, 1, 80.0),
    Sketcher.Constraint("DistanceY", 0, 2, 0, 1, 100.0),
    Sketcher.Constraint("Radius", 5, 0.05),
    Sketcher.Constraint("DistanceX", 4, 2, 4, 1, 78.4),
    Sketcher.Constraint("DistanceY", 6, 2, 6, 1, 98.4),
])
sketch8.setExpression("Constraints[25]", "Params.sketch8_width")
sketch8.setExpression("Constraints[26]", "Params.sketch8_height")
sketch8.setExpression("Constraints[27]", "Params.sketch8_radius")
sketch8.setExpression("Constraints[28]", "Params.sketch8_width2")
sketch8.setExpression("Constraints[29]", "Params.sketch8_height2")
pad8 = body.newObject("PartDesign::Pad", "Pad007")
pad8.Profile = sketch8
pad8.setExpression("Length", "Params.pad8_length")
pad8.Reversed = True

doc.recompute()
